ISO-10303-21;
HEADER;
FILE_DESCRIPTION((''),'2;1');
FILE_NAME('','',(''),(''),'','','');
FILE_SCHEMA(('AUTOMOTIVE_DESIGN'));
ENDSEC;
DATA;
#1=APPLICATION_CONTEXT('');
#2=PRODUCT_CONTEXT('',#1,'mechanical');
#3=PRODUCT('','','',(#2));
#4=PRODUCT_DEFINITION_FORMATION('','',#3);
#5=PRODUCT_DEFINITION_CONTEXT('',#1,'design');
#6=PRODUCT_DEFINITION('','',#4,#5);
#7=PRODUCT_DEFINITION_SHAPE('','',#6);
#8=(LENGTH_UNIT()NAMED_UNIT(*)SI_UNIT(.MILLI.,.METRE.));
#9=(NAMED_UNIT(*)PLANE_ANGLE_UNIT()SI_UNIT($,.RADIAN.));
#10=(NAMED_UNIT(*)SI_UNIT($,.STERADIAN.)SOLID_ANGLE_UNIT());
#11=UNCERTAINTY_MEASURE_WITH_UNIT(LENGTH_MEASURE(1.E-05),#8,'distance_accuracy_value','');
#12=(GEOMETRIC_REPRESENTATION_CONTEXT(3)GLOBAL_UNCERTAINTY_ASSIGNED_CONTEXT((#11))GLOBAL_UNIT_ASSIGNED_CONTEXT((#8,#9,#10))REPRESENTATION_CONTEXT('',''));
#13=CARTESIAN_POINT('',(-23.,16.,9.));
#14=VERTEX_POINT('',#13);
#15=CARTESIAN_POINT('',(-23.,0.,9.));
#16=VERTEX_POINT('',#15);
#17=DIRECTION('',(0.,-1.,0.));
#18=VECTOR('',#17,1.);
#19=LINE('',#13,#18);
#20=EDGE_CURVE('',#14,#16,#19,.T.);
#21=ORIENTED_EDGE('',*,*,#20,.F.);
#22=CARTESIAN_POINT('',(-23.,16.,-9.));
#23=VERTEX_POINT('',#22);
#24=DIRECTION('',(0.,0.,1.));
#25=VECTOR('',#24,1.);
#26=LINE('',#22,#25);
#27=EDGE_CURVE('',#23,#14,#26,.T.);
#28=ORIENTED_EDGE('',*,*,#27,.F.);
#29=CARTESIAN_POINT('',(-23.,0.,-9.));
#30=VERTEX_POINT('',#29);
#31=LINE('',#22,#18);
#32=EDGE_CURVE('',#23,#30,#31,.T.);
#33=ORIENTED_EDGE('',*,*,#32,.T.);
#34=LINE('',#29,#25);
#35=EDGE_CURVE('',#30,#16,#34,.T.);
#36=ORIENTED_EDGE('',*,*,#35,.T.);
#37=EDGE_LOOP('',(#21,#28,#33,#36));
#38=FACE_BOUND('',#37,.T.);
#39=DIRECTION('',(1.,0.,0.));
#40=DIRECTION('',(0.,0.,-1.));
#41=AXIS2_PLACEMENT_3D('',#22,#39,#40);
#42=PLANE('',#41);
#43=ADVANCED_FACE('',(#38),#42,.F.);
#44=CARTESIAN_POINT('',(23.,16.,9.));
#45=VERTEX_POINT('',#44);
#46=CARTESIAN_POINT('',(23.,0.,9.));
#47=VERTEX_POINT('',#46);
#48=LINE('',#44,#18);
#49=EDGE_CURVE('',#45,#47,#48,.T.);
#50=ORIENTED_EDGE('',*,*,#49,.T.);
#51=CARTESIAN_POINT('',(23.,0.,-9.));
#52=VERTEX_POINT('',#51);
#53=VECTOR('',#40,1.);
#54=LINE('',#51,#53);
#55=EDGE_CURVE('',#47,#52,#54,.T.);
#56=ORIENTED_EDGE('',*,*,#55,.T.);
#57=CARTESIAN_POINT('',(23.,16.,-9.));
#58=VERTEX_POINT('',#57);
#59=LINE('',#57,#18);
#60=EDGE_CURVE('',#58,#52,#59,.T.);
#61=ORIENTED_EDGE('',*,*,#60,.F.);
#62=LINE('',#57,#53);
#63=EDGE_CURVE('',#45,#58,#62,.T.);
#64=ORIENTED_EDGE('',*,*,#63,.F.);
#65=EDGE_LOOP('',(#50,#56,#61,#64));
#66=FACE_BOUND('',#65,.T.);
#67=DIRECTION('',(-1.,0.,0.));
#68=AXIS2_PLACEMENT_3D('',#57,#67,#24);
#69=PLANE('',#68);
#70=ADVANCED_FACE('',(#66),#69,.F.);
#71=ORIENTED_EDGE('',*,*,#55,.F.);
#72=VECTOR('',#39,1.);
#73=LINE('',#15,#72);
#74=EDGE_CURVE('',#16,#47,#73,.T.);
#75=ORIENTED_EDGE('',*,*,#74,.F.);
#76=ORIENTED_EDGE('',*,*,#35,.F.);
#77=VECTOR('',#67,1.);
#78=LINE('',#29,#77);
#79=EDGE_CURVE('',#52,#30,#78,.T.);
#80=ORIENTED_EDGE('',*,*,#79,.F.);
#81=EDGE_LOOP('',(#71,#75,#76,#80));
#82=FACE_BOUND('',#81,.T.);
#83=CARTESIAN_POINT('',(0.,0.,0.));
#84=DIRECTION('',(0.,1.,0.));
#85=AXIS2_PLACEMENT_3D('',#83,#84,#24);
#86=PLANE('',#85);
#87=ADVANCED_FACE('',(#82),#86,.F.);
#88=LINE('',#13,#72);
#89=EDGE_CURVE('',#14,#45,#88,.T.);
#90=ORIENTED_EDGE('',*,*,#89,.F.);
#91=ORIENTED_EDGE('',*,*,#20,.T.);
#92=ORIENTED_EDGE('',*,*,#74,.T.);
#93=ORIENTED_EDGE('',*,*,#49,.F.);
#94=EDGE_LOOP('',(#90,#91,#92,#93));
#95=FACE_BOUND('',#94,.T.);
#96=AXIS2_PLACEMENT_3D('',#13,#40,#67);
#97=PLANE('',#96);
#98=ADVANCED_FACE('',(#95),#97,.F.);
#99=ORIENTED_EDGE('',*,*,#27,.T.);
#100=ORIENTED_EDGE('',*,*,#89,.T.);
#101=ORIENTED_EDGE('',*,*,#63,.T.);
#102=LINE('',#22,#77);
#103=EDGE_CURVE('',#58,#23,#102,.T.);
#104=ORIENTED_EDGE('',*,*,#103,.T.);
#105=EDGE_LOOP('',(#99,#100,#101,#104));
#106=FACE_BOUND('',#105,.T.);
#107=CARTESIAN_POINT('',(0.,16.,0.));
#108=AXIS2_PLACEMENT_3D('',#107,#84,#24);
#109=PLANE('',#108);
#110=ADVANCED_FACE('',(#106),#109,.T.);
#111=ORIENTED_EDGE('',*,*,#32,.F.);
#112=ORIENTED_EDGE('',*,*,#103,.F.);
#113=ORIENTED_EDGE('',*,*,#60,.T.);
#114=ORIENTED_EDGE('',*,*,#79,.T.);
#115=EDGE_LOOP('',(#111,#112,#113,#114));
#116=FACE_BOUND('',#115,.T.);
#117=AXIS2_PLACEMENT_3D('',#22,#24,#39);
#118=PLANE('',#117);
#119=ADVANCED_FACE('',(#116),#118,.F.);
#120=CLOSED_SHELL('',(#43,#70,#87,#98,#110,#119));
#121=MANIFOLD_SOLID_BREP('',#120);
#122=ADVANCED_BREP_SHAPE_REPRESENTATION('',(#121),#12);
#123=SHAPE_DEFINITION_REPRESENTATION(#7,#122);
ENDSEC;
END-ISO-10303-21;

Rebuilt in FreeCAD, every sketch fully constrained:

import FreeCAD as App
import Part
import Sketcher
from FreeCAD import Vector
Q = App.Units.Quantity

doc = App.newDocument("Part")
body = doc.addObject("PartDesign::Body", "Body")

# Sketch on XZ plane
sketch1 = body.newObject("Sketcher::SketchObject", "Sketch")
sketch1.AttachmentSupport = (doc.getObject("XZ_Plane"), [""])
sketch1.MapMode = "FlatFace"
sketch1.addGeometry(Part.LineSegment(Vector(-23, -9, 0), Vector(-23, 9, 0)), False)
sketch1.addGeometry(Part.LineSegment(Vector(-23, 9, 0), Vector(23, 9, 0)), False)
sketch1.addGeometry(Part.LineSegment(Vector(23, 9, 0), Vector(23, -9, 0)), False)
sketch1.addGeometry(Part.LineSegment(Vector(23, -9, 0), Vector(-23, -9, 0)), False)
sketch1.addConstraint(Sketcher.Constraint("Coincident", 0, 2, 1, 1))
sketch1.addConstraint(Sketcher.Constraint("Coincident", 1, 2, 2, 1))
sketch1.addConstraint(Sketcher.Constraint("Coincident", 2, 2, 3, 1))
sketch1.addConstraint(Sketcher.Constraint("Coincident", 3, 2, 0, 1))
sketch1.addConstraint(Sketcher.Constraint("Vertical", 0))
sketch1.addConstraint(Sketcher.Constraint("Horizontal", 1))
sketch1.addConstraint(Sketcher.Constraint("Vertical", 2))
sketch1.addConstraint(Sketcher.Constraint("Horizontal", 3))
sketch1.addConstraint(Sketcher.Constraint("Symmetric", 0, 2, 2, 2, -1, 1))
sketch1.addConstraint(Sketcher.Constraint("DistanceX", 1, 1, 1, 2, Q("46 mm")))
sketch1.addConstraint(Sketcher.Constraint("DistanceY", 0, 1, 0, 2, Q("18 mm")))
pad1 = body.newObject("PartDesign::Pad", "Pad")
pad1.Profile = sketch1
pad1.Length = 16
pad1.Reversed = True

doc.recompute()
